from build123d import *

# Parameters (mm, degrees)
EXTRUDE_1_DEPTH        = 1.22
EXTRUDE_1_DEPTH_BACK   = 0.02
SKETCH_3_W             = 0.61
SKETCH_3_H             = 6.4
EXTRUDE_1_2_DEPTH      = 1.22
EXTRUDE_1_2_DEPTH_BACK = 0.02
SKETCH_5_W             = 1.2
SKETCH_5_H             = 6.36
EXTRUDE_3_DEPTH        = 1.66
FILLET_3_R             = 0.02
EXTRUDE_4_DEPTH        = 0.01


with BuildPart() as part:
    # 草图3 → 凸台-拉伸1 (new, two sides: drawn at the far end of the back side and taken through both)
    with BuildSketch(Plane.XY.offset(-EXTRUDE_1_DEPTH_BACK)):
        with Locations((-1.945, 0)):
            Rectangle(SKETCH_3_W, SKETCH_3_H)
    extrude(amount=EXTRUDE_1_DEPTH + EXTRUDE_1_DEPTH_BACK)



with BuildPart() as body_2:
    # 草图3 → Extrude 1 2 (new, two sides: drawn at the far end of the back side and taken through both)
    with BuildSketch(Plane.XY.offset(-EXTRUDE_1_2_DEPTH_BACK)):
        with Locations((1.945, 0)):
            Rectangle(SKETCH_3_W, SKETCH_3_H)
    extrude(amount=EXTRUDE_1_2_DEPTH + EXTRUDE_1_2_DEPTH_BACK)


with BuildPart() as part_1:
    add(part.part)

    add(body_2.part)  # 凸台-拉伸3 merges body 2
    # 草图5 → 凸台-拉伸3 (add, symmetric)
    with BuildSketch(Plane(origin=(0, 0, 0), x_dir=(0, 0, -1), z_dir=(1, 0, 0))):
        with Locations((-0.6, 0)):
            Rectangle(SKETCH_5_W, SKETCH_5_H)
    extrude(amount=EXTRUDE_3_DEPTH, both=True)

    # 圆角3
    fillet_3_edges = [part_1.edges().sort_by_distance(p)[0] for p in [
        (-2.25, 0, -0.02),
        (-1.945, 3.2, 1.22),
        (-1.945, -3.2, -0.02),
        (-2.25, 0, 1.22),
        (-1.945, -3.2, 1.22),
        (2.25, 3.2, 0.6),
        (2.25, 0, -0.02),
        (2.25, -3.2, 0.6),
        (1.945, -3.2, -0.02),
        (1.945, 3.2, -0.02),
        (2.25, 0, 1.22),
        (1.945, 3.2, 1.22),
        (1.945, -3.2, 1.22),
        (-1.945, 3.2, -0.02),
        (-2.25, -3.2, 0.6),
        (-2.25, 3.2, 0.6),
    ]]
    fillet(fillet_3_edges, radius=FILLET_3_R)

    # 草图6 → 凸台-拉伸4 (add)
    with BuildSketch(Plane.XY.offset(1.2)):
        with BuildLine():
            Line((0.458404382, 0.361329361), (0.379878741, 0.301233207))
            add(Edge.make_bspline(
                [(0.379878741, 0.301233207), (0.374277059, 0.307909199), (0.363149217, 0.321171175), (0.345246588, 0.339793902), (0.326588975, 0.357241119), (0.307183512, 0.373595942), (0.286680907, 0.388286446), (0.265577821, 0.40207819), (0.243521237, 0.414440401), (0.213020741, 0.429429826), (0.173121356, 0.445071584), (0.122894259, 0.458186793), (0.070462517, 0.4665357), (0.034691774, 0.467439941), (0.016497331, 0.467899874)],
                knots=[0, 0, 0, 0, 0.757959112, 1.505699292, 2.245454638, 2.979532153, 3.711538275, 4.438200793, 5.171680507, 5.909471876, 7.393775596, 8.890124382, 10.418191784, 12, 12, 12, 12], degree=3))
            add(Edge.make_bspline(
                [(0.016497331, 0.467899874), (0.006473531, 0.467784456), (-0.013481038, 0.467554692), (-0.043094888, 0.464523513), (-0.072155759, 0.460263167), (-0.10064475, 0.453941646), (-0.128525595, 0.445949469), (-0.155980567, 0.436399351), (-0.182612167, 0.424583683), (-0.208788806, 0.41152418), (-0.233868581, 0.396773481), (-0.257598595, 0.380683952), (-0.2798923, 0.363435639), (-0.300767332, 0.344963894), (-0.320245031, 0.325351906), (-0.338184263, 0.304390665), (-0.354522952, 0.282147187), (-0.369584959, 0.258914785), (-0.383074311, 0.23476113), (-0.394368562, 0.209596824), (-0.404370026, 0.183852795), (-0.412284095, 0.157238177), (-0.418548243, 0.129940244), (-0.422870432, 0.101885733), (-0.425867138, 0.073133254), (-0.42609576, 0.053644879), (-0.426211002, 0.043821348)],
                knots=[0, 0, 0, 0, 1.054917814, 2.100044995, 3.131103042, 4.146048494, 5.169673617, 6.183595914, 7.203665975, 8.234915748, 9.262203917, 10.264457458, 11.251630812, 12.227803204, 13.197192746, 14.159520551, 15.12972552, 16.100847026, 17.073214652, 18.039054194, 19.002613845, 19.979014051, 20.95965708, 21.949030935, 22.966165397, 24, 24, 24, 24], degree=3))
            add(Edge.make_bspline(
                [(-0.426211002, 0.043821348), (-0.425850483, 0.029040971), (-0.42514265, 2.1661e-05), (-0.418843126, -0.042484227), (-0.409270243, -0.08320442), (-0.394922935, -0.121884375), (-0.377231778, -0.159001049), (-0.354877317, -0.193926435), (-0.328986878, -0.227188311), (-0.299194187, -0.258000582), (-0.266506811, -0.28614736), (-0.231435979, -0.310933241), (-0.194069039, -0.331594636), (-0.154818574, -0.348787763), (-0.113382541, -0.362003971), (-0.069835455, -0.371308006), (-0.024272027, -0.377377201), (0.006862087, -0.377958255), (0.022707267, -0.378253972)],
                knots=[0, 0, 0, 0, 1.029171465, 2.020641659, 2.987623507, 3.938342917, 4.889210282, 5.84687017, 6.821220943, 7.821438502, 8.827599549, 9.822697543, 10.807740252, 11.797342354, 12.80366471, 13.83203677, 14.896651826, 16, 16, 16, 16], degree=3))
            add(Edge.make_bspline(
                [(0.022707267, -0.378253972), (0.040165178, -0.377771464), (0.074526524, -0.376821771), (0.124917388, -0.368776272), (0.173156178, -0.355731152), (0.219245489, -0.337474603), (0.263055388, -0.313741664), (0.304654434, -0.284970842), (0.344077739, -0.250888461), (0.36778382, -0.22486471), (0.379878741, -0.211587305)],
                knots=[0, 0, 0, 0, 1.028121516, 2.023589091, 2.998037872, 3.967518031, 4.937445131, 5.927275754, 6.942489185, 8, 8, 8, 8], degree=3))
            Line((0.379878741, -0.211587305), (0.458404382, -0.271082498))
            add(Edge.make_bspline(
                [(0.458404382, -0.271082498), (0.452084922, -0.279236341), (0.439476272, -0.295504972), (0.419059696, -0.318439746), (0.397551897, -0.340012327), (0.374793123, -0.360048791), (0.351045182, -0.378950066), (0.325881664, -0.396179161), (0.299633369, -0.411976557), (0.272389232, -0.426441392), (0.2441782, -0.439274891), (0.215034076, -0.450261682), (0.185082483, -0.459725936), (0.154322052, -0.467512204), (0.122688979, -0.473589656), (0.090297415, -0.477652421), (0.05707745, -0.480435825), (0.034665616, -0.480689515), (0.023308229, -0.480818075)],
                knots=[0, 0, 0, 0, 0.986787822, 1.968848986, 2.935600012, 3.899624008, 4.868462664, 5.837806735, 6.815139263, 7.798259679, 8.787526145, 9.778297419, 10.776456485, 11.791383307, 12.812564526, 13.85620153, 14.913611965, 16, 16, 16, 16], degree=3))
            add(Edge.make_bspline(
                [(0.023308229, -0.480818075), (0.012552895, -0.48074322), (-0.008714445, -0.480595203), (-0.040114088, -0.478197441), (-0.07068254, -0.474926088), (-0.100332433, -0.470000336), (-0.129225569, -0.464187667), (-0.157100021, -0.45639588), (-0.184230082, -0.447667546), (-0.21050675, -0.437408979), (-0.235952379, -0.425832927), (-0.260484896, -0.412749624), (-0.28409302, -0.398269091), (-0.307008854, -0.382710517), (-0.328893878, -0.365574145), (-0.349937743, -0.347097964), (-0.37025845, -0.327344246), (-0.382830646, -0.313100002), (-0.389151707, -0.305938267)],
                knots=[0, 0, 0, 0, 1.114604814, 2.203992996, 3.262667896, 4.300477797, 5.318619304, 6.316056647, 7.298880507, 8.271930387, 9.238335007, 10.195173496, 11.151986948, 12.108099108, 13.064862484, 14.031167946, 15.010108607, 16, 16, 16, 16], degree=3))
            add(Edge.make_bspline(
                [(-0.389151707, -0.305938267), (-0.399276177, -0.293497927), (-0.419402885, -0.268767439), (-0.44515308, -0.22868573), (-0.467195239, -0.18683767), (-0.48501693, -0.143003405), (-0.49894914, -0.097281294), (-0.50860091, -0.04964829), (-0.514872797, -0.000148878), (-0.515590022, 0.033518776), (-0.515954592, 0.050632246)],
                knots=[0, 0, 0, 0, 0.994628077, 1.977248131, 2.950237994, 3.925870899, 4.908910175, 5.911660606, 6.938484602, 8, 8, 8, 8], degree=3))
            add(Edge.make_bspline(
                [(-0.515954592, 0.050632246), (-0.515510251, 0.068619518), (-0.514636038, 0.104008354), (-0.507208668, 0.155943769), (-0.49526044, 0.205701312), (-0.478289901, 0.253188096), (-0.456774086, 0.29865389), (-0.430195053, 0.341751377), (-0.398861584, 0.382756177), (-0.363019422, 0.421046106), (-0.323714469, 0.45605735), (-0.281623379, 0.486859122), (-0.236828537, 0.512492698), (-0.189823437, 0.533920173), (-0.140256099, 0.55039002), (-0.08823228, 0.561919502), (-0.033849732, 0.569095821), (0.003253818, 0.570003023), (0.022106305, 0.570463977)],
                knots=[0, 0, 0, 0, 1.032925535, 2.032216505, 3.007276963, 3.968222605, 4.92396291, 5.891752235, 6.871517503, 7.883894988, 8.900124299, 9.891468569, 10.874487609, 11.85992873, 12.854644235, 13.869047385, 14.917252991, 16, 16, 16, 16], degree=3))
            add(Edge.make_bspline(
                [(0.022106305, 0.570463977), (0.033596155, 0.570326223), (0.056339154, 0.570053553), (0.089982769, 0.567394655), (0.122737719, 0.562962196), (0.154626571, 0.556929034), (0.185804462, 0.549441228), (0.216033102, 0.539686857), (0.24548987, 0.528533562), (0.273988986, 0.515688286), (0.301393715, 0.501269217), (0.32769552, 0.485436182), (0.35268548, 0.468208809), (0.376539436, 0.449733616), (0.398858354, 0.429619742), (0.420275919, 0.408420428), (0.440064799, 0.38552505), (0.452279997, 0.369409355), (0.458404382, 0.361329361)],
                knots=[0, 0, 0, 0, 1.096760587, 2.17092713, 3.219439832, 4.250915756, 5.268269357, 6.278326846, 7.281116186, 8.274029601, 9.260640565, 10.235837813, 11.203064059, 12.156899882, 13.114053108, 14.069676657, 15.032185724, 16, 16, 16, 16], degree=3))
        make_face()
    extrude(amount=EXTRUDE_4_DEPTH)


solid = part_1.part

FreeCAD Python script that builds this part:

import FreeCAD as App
import Part
import Sketcher
Q = App.Units.Quantity


def edges_at(feature, points):
    """Names of the edges that pass closest to the given points."""
    edges = feature.Shape.Edges
    near = lambda p: min(range(len(edges)), key=lambda i: edges[i].distToShape(Part.Vertex(*p))[0])
    return sorted({f"Edge{near(p) + 1}" for p in points})

doc = App.newDocument("Part")
body = doc.addObject("PartDesign::Body", "Body")

# Sketch on XY plane
sketch1 = body.newObject("Sketcher::SketchObject", "Sketch")
sketch1.AttachmentSupport = (doc.getObject("XY_Plane"), [""])
sketch1.MapMode = "FlatFace"
sketch1.addGeometry(Part.LineSegment(App.Vector(-2.25, 3.2, 0), App.Vector(-2.25, -3.2, 0)), False)
sketch1.addGeometry(Part.LineSegment(App.Vector(-2.25, -3.2, 0), App.Vector(-1.64, -3.2, 0)), False)
sketch1.addGeometry(Part.LineSegment(App.Vector(-1.64, -3.2, 0), App.Vector(-1.64, 3.2, 0)), False)
sketch1.addGeometry(Part.LineSegment(App.Vector(-1.64, 3.2, 0), App.Vector(-2.25, 3.2, 0)), False)
sketch1.addConstraint(Sketcher.Constraint("Coincident", 0, 2, 1, 1))
sketch1.addConstraint(Sketcher.Constraint("Coincident", 1, 2, 2, 1))
sketch1.addConstraint(Sketcher.Constraint("Coincident", 2, 2, 3, 1))
sketch1.addConstraint(Sketcher.Constraint("Coincident", 3, 2, 0, 1))
sketch1.addConstraint(Sketcher.Constraint("Vertical", 0))
sketch1.addConstraint(Sketcher.Constraint("Horizontal", 1))
sketch1.addConstraint(Sketcher.Constraint("Vertical", 2))
sketch1.addConstraint(Sketcher.Constraint("Horizontal", 3))
sketch1.addConstraint(Sketcher.Constraint("DistanceY", 0, 2, 0, 1, Q("6.4 mm")))
sketch1.addConstraint(Sketcher.Constraint("DistanceX", 1, 1, 1, 2, Q("0.61 mm")))
sketch1.addConstraint(Sketcher.Constraint("DistanceY", 0, 2, -1, 1, Q("3.2 mm")))
sketch1.addConstraint(Sketcher.Constraint("DistanceX", 0, 2, -1, 1, Q("2.25 mm")))
pad1 = body.newObject("PartDesign::Pad", "Pad")
pad1.Profile = sketch1
pad1.Type = "TwoLengths"
pad1.Length = 1.22
pad1.Length2 = 0.02
body2 = doc.addObject("PartDesign::Body", "Body001")

# Sketch on XY plane
sketch2 = body2.newObject("Sketcher::SketchObject", "Sketch001")
sketch2.AttachmentSupport = (doc.getObject("XY_Plane001"), [""])
sketch2.MapMode = "FlatFace"
sketch2.addGeometry(Part.LineSegment(App.Vector(1.64, 3.2, 0), App.Vector(1.64, -3.2, 0)), False)
sketch2.addGeometry(Part.LineSegment(App.Vector(1.64, -3.2, 0), App.Vector(2.25, -3.2, 0)), False)
sketch2.addGeometry(Part.LineSegment(App.Vector(2.25, -3.2, 0), App.Vector(2.25, 3.2, 0)), False)
sketch2.addGeometry(Part.LineSegment(App.Vector(2.25, 3.2, 0), App.Vector(1.64, 3.2, 0)), False)
sketch2.addConstraint(Sketcher.Constraint("Coincident", 0, 2, 1, 1))
sketch2.addConstraint(Sketcher.Constraint("Coincident", 1, 2, 2, 1))
sketch2.addConstraint(Sketcher.Constraint("Coincident", 2, 2, 3, 1))
sketch2.addConstraint(Sketcher.Constraint("Coincident", 3, 2, 0, 1))
sketch2.addConstraint(Sketcher.Constraint("Vertical", 0))
sketch2.addConstraint(Sketcher.Constraint("Horizontal", 1))
sketch2.addConstraint(Sketcher.Constraint("Vertical", 2))
sketch2.addConstraint(Sketcher.Constraint("Horizontal", 3))
sketch2.addConstraint(Sketcher.Constraint("DistanceY", 0, 2, 0, 1, Q("6.4 mm")))
sketch2.addConstraint(Sketcher.Constraint("DistanceX", 1, 1, 1, 2, Q("0.61 mm")))
sketch2.addConstraint(Sketcher.Constraint("DistanceY", 0, 2, -1, 1, Q("3.2 mm")))
sketch2.addConstraint(Sketcher.Constraint("DistanceX", -1, 1, 0, 2, Q("1.64 mm")))
pad2 = body2.newObject("PartDesign::Pad", "Pad001")
pad2.Profile = sketch2
pad2.Type = "TwoLengths"
pad2.Length = 1.22
pad2.Length2 = 0.02
body.AllowCompound = True
doc.recompute()

boolean = body.newObject("PartDesign::Boolean", "Boolean")
boolean.Type = "Fuse"
boolean.addObjects([body2])

# Sketch on YZ plane
sketch3 = body.newObject("Sketcher::SketchObject", "Sketch002")
sketch3.AttachmentSupport = (doc.getObject("YZ_Plane"), [""])
sketch3.MapMode = "FlatFace"
sketch3.addGeometry(Part.LineSegment(App.Vector(3.18, 1.2, 0), App.Vector(-3.18, 1.2, 0)), False)
sketch3.addGeometry(Part.LineSegment(App.Vector(-3.18, 1.2, 0), App.Vector(-3.18, 0, 0)), False)
sketch3.addGeometry(Part.LineSegment(App.Vector(-3.18, 0, 0), App.Vector(3.18, 0, 0)), False)
sketch3.addGeometry(Part.LineSegment(App.Vector(3.18, 0, 0), App.Vector(3.18, 1.2, 0)), False)
sketch3.addConstraint(Sketcher.Constraint("Coincident", 0, 2, 1, 1))
sketch3.addConstraint(Sketcher.Constraint("Coincident", 1, 2, 2, 1))
sketch3.addConstraint(Sketcher.Constraint("Coincident", 2, 2, 3, 1))
sketch3.addConstraint(Sketcher.Constraint("Coincident", 3, 2, 0, 1))
sketch3.addConstraint(Sketcher.Constraint("Horizontal", 0))
sketch3.addConstraint(Sketcher.Constraint("Vertical", 1))
sketch3.addConstraint(Sketcher.Constraint("Horizontal", 2))
sketch3.addConstraint(Sketcher.Constraint("Vertical", 3))
sketch3.addConstraint(Sketcher.Constraint("Symmetric", 1, 2, 2, 2, -1, 1))
sketch3.addConstraint(Sketcher.Constraint("DistanceY", 1, 2, 1, 1, Q("1.2 mm")))
sketch3.addConstraint(Sketcher.Constraint("DistanceX", 0, 2, 0, 1, Q("6.36 mm")))
pad3 = body.newObject("PartDesign::Pad", "Pad002")
pad3.Profile = sketch3
pad3.Length = 3.32
pad3.Midplane = True
doc.recompute()

fillet = body.newObject("PartDesign::Fillet", "Fillet")
fillet.Base = (pad3, edges_at(pad3, [
    (-2.25, 0, -0.02),
    (-1.945, 3.2, 1.22),
    (-1.945, -3.2, -0.02),
    (-2.25, 0, 1.22),
    (-1.945, -3.2, 1.22),
    (2.25, 3.2, 0.6),
    (2.25, 0, -0.02),
    (2.25, -3.2, 0.6),
    (1.945, -3.2, -0.02),
    (1.945, 3.2, -0.02),
    (2.25, 0, 1.22),
    (1.945, 3.2, 1.22),
    (1.945, -3.2, 1.22),
    (-1.945, 3.2, -0.02),
    (-2.25, -3.2, 0.6),
    (-2.25, 3.2, 0.6),
]))
fillet.Radius = 0.02

# Sketch on XY plane
sketch4 = body.newObject("Sketcher::SketchObject", "Sketch003")
sketch4.AttachmentSupport = (doc.getObject("XY_Plane"), [""])
sketch4.MapMode = "FlatFace"
sketch4.AttachmentOffset = App.Placement(App.Vector(0, 0, 1.2), App.Rotation())
sketch4.addGeometry(Part.LineSegment(App.Vector(0.379879, 0.301233, 0), App.Vector(0.458404, 0.361329, 0)), False)
sketch4.addGeometry(Part.BSplineCurve([App.Vector(0.022106, 0.570464, 0), App.Vector(0.033596, 0.570326, 0), App.Vector(0.056339, 0.570054, 0), App.Vector(0.089983, 0.567395, 0), App.Vector(0.122738, 0.562962, 0), App.Vector(0.154627, 0.556929, 0), App.Vector(0.185804, 0.549441, 0), App.Vector(0.216033, 0.539687, 0), App.Vector(0.24549, 0.528534, 0), App.Vector(0.273989, 0.515688, 0), App.Vector(0.301394, 0.501269, 0), App.Vector(0.327696, 0.485436, 0), App.Vector(0.352685, 0.468209, 0), App.Vector(0.376539, 0.449734, 0), App.Vector(0.398858, 0.42962, 0), App.Vector(0.420276, 0.40842, 0), App.Vector(0.440065, 0.385525, 0), App.Vector(0.45228, 0.369409, 0), App.Vector(0.458404, 0.361329, 0)], [4, 1, 1, 1, 1, 1, 1, 1, 1, 1, 1, 1, 1, 1, 1, 1, 4], [0, 1.096760587, 2.17092713, 3.219439832, 4.250915756, 5.268269357, 6.278326846, 7.281116186, 8.274029601, 9.260640565, 10.235837813, 11.203064059, 12.156899882, 13.114053108, 14.069676657, 15.032185724, 16], False, 3, [1, 1, 1, 1, 1, 1, 1, 1, 1, 1, 1, 1, 1, 1, 1, 1, 1, 1, 1], False), False)
sketch4.addGeometry(Part.BSplineCurve([App.Vector(-0.515955, 0.050632, 0), App.Vector(-0.51551, 0.06862, 0), App.Vector(-0.514636, 0.104008, 0), App.Vector(-0.507209, 0.155944, 0), App.Vector(-0.49526, 0.205701, 0), App.Vector(-0.47829, 0.253188, 0), App.Vector(-0.456774, 0.298654, 0), App.Vector(-0.430195, 0.341751, 0), App.Vector(-0.398862, 0.382756, 0), App.Vector(-0.363019, 0.421046, 0), App.Vector(-0.323714, 0.456057, 0), App.Vector(-0.281623, 0.486859, 0), App.Vector(-0.236829, 0.512493, 0), App.Vector(-0.189823, 0.53392, 0), App.Vector(-0.140256, 0.55039, 0), App.Vector(-0.088232, 0.56192, 0), App.Vector(-0.03385, 0.569096, 0), App.Vector(0.003254, 0.570003, 0), App.Vector(0.022106, 0.570464, 0)], [4, 1, 1, 1, 1, 1, 1, 1, 1, 1, 1, 1, 1, 1, 1, 1, 4], [0, 1.032925535, 2.032216505, 3.007276963, 3.968222605, 4.92396291, 5.891752235, 6.871517503, 7.883894988, 8.900124299, 9.891468569, 10.874487609, 11.85992873, 12.854644235, 13.869047385, 14.917252991, 16], False, 3, [1, 1, 1, 1, 1, 1, 1, 1, 1, 1, 1, 1, 1, 1, 1, 1, 1, 1, 1], False), False)
sketch4.addGeometry(Part.BSplineCurve([App.Vector(-0.389152, -0.305938, 0), App.Vector(-0.399276, -0.293498, 0), App.Vector(-0.419403, -0.268767, 0), App.Vector(-0.445153, -0.228686, 0), App.Vector(-0.467195, -0.186838, 0), App.Vector(-0.485017, -0.143003, 0), App.Vector(-0.498949, -0.097281, 0), App.Vector(-0.508601, -0.049648, 0), App.Vector(-0.514873, -0.000149, 0), App.Vector(-0.51559, 0.033519, 0), App.Vector(-0.515955, 0.050632, 0)], [4, 1, 1, 1, 1, 1, 1, 1, 4], [0, 0.994628077, 1.977248131, 2.950237994, 3.925870899, 4.908910175, 5.911660606, 6.938484602, 8], False, 3, [1, 1, 1, 1, 1, 1, 1, 1, 1, 1, 1], False), False)
sketch4.addGeometry(Part.BSplineCurve([App.Vector(0.023308, -0.480818, 0), App.Vector(0.012553, -0.480743, 0), App.Vector(-0.008714, -0.480595, 0), App.Vector(-0.040114, -0.478197, 0), App.Vector(-0.070683, -0.474926, 0), App.Vector(-0.100332, -0.47, 0), App.Vector(-0.129226, -0.464188, 0), App.Vector(-0.1571, -0.456396, 0), App.Vector(-0.18423, -0.447668, 0), App.Vector(-0.210507, -0.437409, 0), App.Vector(-0.235952, -0.425833, 0), App.Vector(-0.260485, -0.41275, 0), App.Vector(-0.284093, -0.398269, 0), App.Vector(-0.307009, -0.382711, 0), App.Vector(-0.328894, -0.365574, 0), App.Vector(-0.349938, -0.347098, 0), App.Vector(-0.370258, -0.327344, 0), App.Vector(-0.382831, -0.3131, 0), App.Vector(-0.389152, -0.305938, 0)], [4, 1, 1, 1, 1, 1, 1, 1, 1, 1, 1, 1, 1, 1, 1, 1, 4], [0, 1.114604814, 2.203992996, 3.262667896, 4.300477797, 5.318619304, 6.316056647, 7.298880507, 8.271930387, 9.238335007, 10.195173496, 11.151986948, 12.108099108, 13.064862484, 14.031167946, 15.010108607, 16], False, 3, [1, 1, 1, 1, 1, 1, 1, 1, 1, 1, 1, 1, 1, 1, 1, 1, 1, 1, 1], False), False)
sketch4.addGeometry(Part.BSplineCurve([App.Vector(0.458404, -0.271082, 0), App.Vector(0.452085, -0.279236, 0), App.Vector(0.439476, -0.295505, 0), App.Vector(0.41906, -0.31844, 0), App.Vector(0.397552, -0.340012, 0), App.Vector(0.374793, -0.360049, 0), App.Vector(0.351045, -0.37895, 0), App.Vector(0.325882, -0.396179, 0), App.Vector(0.299633, -0.411977, 0), App.Vector(0.272389, -0.426441, 0), App.Vector(0.244178, -0.439275, 0), App.Vector(0.215034, -0.450262, 0), App.Vector(0.185082, -0.459726, 0), App.Vector(0.154322, -0.467512, 0), App.Vector(0.122689, -0.47359, 0), App.Vector(0.090297, -0.477652, 0), App.Vector(0.057077, -0.480436, 0), App.Vector(0.034666, -0.48069, 0), App.Vector(0.023308, -0.480818, 0)], [4, 1, 1, 1, 1, 1, 1, 1, 1, 1, 1, 1, 1, 1, 1, 1, 4], [0, 0.986787822, 1.968848986, 2.935600012, 3.899624008, 4.868462664, 5.837806735, 6.815139263, 7.798259679, 8.787526145, 9.778297419, 10.776456485, 11.791383307, 12.812564526, 13.85620153, 14.913611965, 16], False, 3, [1, 1, 1, 1, 1, 1, 1, 1, 1, 1, 1, 1, 1, 1, 1, 1, 1, 1, 1], False), False)
sketch4.addGeometry(Part.LineSegment(App.Vector(0.458404, -0.271082, 0), App.Vector(0.379879, -0.211587, 0)), False)
sketch4.addGeometry(Part.BSplineCurve([App.Vector(0.022707, -0.378254, 0), App.Vector(0.040165, -0.377771, 0), App.Vector(0.074527, -0.376822, 0), App.Vector(0.124917, -0.368776, 0), App.Vector(0.173156, -0.355731, 0), App.Vector(0.219245, -0.337475, 0), App.Vector(0.263055, -0.313742, 0), App.Vector(0.304654, -0.284971, 0), App.Vector(0.344078, -0.250888, 0), App.Vector(0.367784, -0.224865, 0), App.Vector(0.379879, -0.211587, 0)], [4, 1, 1, 1, 1, 1, 1, 1, 4], [0, 1.028121516, 2.023589091, 2.998037872, 3.967518031, 4.937445131, 5.927275754, 6.942489185, 8], False, 3, [1, 1, 1, 1, 1, 1, 1, 1, 1, 1, 1], False), False)
sketch4.addGeometry(Part.BSplineCurve([App.Vector(-0.426211, 0.043821, 0), App.Vector(-0.42585, 0.029041, 0), App.Vector(-0.425143, 0.000022, 0), App.Vector(-0.418843, -0.042484, 0), App.Vector(-0.40927, -0.083204, 0), App.Vector(-0.394923, -0.121884, 0), App.Vector(-0.377232, -0.159001, 0), App.Vector(-0.354877, -0.193926, 0), App.Vector(-0.328987, -0.227188, 0), App.Vector(-0.299194, -0.258001, 0), App.Vector(-0.266507, -0.286147, 0), App.Vector(-0.231436, -0.310933, 0), App.Vector(-0.194069, -0.331595, 0), App.Vector(-0.154819, -0.348788, 0), App.Vector(-0.113383, -0.362004, 0), App.Vector(-0.069835, -0.371308, 0), App.Vector(-0.024272, -0.377377, 0), App.Vector(0.006862, -0.377958, 0), App.Vector(0.022707, -0.378254, 0)], [4, 1, 1, 1, 1, 1, 1, 1, 1, 1, 1, 1, 1, 1, 1, 1, 4], [0, 1.029171465, 2.020641659, 2.987623507, 3.938342917, 4.889210282, 5.84687017, 6.821220943, 7.821438502, 8.827599549, 9.822697543, 10.807740252, 11.797342354, 12.80366471, 13.83203677, 14.896651826, 16], False, 3, [1, 1, 1, 1, 1, 1, 1, 1, 1, 1, 1, 1, 1, 1, 1, 1, 1, 1, 1], False), False)
sketch4.addGeometry(Part.BSplineCurve([App.Vector(0.016497, 0.4679, 0), App.Vector(0.006474, 0.467784, 0), App.Vector(-0.013481, 0.467555, 0), App.Vector(-0.043095, 0.464524, 0), App.Vector(-0.072156, 0.460263, 0), App.Vector(-0.100645, 0.453942, 0), App.Vector(-0.128526, 0.445949, 0), App.Vector(-0.155981, 0.436399, 0), App.Vector(-0.182612, 0.424584, 0), App.Vector(-0.208789, 0.411524, 0), App.Vector(-0.233869, 0.396773, 0), App.Vector(-0.257599, 0.380684, 0), App.Vector(-0.279892, 0.363436, 0), App.Vector(-0.300767, 0.344964, 0), App.Vector(-0.320245, 0.325352, 0), App.Vector(-0.338184, 0.304391, 0), App.Vector(-0.354523, 0.282147, 0), App.Vector(-0.369585, 0.258915, 0), App.Vector(-0.383074, 0.234761, 0), App.Vector(-0.394369, 0.209597, 0), App.Vector(-0.40437, 0.183853, 0), App.Vector(-0.412284, 0.157238, 0), App.Vector(-0.418548, 0.12994, 0), App.Vector(-0.42287, 0.101886, 0), App.Vector(-0.425867, 0.073133, 0), App.Vector(-0.426096, 0.053645, 0), App.Vector(-0.426211, 0.043821, 0)], [4, 1, 1, 1, 1, 1, 1, 1, 1, 1, 1, 1, 1, 1, 1, 1, 1, 1, 1, 1, 1, 1, 1, 1, 4], [0, 1.054917814, 2.100044995, 3.131103042, 4.146048494, 5.169673617, 6.183595914, 7.203665975, 8.234915748, 9.262203917, 10.264457458, 11.251630812, 12.227803204, 13.197192746, 14.159520551, 15.12972552, 16.100847026, 17.073214652, 18.039054194, 19.002613845, 19.979014051, 20.95965708, 21.949030935, 22.966165397, 24], False, 3, [1, 1, 1, 1, 1, 1, 1, 1, 1, 1, 1, 1, 1, 1, 1, 1, 1, 1, 1, 1, 1, 1, 1, 1, 1, 1, 1], False), False)
sketch4.addGeometry(Part.BSplineCurve([App.Vector(0.379879, 0.301233, 0), App.Vector(0.374277, 0.307909, 0), App.Vector(0.363149, 0.321171, 0), App.Vector(0.345247, 0.339794, 0), App.Vector(0.326589, 0.357241, 0), App.Vector(0.307184, 0.373596, 0), App.Vector(0.286681, 0.388286, 0), App.Vector(0.265578, 0.402078, 0), App.Vector(0.243521, 0.41444, 0), App.Vector(0.213021, 0.42943, 0), App.Vector(0.173121, 0.445072, 0), App.Vector(0.122894, 0.458187, 0), App.Vector(0.070463, 0.466536, 0), App.Vector(0.034692, 0.46744, 0), App.Vector(0.016497, 0.4679, 0)], [4, 1, 1, 1, 1, 1, 1, 1, 1, 1, 1, 1, 4], [0, 0.757959112, 1.505699292, 2.245454638, 2.979532153, 3.711538275, 4.438200793, 5.171680507, 5.909471876, 7.393775596, 8.890124382, 10.418191784, 12], False, 3, [1, 1, 1, 1, 1, 1, 1, 1, 1, 1, 1, 1, 1, 1, 1], False), False)
sketch4.addConstraint(Sketcher.Constraint("Block", 1))
sketch4.addConstraint(Sketcher.Constraint("Block", 2))
sketch4.addConstraint(Sketcher.Constraint("Block", 3))
sketch4.addConstraint(Sketcher.Constraint("Block", 4))
sketch4.addConstraint(Sketcher.Constraint("Block", 5))
sketch4.addConstraint(Sketcher.Constraint("Block", 7))
sketch4.addConstraint(Sketcher.Constraint("Block", 8))
sketch4.addConstraint(Sketcher.Constraint("Block", 9))
sketch4.addConstraint(Sketcher.Constraint("Block", 10))
sketch4.addConstraint(Sketcher.Constraint("Coincident", 0, 2, 1, 2))
sketch4.addConstraint(Sketcher.Constraint("Coincident", 5, 1, 6, 1))
sketch4.addConstraint(Sketcher.Constraint("Coincident", 6, 2, 7, 2))
sketch4.addConstraint(Sketcher.Constraint("Coincident", 10, 1, 0, 1))
pad4 = body.newObject("PartDesign::Pad", "Pad003")
pad4.Profile = sketch4
pad4.Length = 0.01

doc.recompute()
